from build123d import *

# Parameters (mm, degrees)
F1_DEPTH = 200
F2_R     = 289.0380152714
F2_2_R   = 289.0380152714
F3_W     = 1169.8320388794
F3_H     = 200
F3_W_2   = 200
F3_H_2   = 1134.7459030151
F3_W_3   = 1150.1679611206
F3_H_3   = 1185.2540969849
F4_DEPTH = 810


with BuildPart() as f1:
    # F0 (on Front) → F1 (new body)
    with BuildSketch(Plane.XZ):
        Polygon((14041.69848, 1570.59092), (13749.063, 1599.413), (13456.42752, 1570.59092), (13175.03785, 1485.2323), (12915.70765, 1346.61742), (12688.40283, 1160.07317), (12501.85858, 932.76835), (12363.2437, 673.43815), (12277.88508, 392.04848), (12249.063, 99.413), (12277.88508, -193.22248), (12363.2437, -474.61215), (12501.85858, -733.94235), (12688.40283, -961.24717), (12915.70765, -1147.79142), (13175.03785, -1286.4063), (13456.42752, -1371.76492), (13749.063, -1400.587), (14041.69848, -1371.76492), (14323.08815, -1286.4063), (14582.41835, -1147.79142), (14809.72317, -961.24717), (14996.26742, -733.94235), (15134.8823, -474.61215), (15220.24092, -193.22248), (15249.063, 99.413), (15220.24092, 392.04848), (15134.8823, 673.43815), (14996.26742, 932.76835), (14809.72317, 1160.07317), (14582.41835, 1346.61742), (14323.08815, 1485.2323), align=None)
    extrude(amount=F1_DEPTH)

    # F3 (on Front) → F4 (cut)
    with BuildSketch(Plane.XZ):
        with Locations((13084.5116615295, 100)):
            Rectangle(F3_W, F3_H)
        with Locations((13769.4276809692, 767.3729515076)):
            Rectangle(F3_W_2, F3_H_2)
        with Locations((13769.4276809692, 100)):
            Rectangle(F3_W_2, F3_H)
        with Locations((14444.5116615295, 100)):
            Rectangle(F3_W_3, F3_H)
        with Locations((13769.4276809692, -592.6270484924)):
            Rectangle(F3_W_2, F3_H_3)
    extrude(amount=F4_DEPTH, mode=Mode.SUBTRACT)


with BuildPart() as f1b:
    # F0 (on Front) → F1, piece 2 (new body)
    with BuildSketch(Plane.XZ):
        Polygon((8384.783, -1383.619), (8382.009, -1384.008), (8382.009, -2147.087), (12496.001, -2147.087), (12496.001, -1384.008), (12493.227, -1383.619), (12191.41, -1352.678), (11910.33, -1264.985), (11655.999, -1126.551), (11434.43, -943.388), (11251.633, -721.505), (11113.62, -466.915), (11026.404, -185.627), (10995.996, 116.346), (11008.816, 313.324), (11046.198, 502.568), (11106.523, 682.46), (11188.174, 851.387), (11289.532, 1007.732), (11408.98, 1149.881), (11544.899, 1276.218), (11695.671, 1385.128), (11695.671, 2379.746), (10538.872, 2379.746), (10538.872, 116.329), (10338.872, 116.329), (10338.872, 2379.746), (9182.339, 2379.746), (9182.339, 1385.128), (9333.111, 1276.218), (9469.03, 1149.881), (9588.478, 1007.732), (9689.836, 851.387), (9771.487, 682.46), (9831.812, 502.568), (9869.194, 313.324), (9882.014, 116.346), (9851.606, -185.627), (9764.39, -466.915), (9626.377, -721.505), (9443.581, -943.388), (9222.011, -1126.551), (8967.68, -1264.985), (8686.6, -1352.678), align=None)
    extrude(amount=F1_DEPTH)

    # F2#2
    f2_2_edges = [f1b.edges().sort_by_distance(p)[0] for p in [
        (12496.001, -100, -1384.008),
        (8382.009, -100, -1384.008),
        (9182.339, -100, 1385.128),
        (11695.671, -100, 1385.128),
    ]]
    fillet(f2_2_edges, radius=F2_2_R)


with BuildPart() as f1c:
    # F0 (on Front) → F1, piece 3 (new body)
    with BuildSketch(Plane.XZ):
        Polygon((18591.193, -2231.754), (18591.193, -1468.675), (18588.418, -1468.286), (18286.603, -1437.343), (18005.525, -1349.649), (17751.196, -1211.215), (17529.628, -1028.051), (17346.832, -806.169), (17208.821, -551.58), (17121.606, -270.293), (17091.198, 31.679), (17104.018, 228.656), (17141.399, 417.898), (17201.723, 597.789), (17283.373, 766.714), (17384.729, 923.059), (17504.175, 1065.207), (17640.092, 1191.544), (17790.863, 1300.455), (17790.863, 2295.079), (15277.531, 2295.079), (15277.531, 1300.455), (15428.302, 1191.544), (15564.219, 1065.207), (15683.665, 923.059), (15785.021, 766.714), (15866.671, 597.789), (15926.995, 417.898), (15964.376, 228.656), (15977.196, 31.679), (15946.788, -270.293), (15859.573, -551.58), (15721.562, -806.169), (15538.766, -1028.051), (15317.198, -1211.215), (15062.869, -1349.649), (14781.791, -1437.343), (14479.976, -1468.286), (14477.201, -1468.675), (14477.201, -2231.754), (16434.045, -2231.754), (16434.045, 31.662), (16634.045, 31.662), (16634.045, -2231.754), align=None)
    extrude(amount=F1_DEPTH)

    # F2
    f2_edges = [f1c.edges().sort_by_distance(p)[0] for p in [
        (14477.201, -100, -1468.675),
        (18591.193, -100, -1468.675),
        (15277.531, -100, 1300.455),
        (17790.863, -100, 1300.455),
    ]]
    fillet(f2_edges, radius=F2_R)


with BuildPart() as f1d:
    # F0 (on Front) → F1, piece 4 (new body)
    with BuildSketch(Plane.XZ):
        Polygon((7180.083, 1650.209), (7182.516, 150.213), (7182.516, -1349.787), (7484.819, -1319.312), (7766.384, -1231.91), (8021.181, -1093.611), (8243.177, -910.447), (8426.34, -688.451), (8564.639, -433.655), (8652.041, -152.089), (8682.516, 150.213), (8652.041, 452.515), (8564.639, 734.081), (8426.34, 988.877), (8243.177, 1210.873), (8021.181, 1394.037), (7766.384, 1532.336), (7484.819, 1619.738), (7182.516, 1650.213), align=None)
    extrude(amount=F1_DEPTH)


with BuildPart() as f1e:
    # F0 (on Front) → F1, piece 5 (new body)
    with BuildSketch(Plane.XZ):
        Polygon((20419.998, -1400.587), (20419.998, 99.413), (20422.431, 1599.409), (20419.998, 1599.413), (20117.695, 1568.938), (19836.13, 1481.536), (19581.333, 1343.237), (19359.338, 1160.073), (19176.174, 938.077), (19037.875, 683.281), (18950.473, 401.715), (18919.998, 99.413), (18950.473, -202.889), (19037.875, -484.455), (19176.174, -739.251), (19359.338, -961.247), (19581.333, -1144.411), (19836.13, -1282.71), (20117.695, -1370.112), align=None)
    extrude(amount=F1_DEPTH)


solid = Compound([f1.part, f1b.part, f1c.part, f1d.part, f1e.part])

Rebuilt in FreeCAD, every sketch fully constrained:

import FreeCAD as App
import Part
import Sketcher
from FreeCAD import Vector


def edges_at(feature, points):
    """Names of the edges that pass closest to the given points."""
    edges = feature.Shape.Edges
    near = lambda p: min(range(len(edges)), key=lambda i: edges[i].distToShape(Part.Vertex(*p))[0])
    return sorted({f"Edge{near(p) + 1}" for p in points})


def add_polygon(sketch, points):
    """Adds a closed chain of lines whose ends are joined by coincident constraints."""
    first, n = sketch.GeometryCount, len(points)
    for a, b in zip(points, points[1:] + points[:1]):
        sketch.addGeometry(Part.LineSegment(App.Vector(*a, 0), App.Vector(*b, 0)), False)
    for i in range(n):
        sketch.addConstraint(Sketcher.Constraint("Coincident", first + i, 2, first + (i + 1) % n, 1))

doc = App.newDocument("Part")
body = doc.addObject("PartDesign::Body", "Body")

sketch1 = body.newObject("Sketcher::SketchObject", "Sketch")
sketch1.AttachmentSupport = (doc.getObject("XZ_Plane"), [""])
sketch1.MapMode = "FlatFace"
add_polygon(sketch1, [(14041.69848, 1570.59092), (13749.063, 1599.413), (13456.42752, 1570.59092), (13175.03785, 1485.2323), (12915.70765, 1346.61742), (12688.40283, 1160.07317), (12501.85858, 932.76835), (12363.2437, 673.43815), (12277.88508, 392.04848), (12249.063, 99.413), (12277.88508, -193.22248), (12363.2437, -474.61215), (12501.85858, -733.94235), (12688.40283, -961.24717), (12915.70765, -1147.79142), (13175.03785, -1286.4063), (13456.42752, -1371.76492), (13749.063, -1400.587), (14041.69848, -1371.76492), (14323.08815, -1286.4063), (14582.41835, -1147.79142), (14809.72317, -961.24717), (14996.26742, -733.94235), (15134.8823, -474.61215), (15220.24092, -193.22248), (15249.063, 99.413), (15220.24092, 392.04848), (15134.8823, 673.43815), (14996.26742, 932.76835), (14809.72317, 1160.07317), (14582.41835, 1346.61742), (14323.08815, 1485.2323)])
sketch1.addConstraint([
    Sketcher.Constraint("Perpendicular", 0, 8),
    Sketcher.Constraint("Perpendicular", 1, 9),
    Sketcher.Constraint("Perpendicular", 2, 10),
    Sketcher.Constraint("Perpendicular", 3, 11),
    Sketcher.Constraint("Perpendicular", 4, 12),
    Sketcher.Constraint("Perpendicular", 5, 13),
    Sketcher.Constraint("Perpendicular", 6, 14),
    Sketcher.Constraint("Perpendicular", 7, 15),
    Sketcher.Constraint("Perpendicular", 8, 16),
    Sketcher.Constraint("Perpendicular", 9, 17),
    Sketcher.Constraint("Perpendicular", 10, 18),
    Sketcher.Constraint("Perpendicular", 11, 19),
    Sketcher.Constraint("Perpendicular", 12, 20),
    Sketcher.Constraint("Perpendicular", 13, 21),
    Sketcher.Constraint("Perpendicular", 14, 22),
    Sketcher.Constraint("Perpendicular", 15, 23),
    Sketcher.Constraint("Perpendicular", 16, 24),
    Sketcher.Constraint("Perpendicular", 17, 25),
    Sketcher.Constraint("Perpendicular", 18, 26),
    Sketcher.Constraint("Perpendicular", 19, 27),
    Sketcher.Constraint("Perpendicular", 20, 28),
    Sketcher.Constraint("Perpendicular", 21, 29),
    Sketcher.Constraint("Perpendicular", 22, 30),
    Sketcher.Constraint("Perpendicular", 23, 31),
    Sketcher.Constraint("Horizontal", 15, 2, 17, 2),
    Sketcher.Constraint("Horizontal", 14, 2, 18, 2),
    Sketcher.Constraint("Horizontal", 13, 2, 19, 2),
    Sketcher.Constraint("Horizontal", 12, 2, 20, 2),
    Sketcher.Constraint("Horizontal", 11, 2, 21, 2),
    Sketcher.Constraint("Horizontal", 10, 2, 22, 2),
    Sketcher.Constraint("Horizontal", 9, 2, 23, 2),
    Sketcher.Constraint("Horizontal", 8, 2, 24, 2),
    Sketcher.Constraint("Horizontal", 7, 2, 25, 2),
    Sketcher.Constraint("Horizontal", 6, 2, 26, 2),
    Sketcher.Constraint("Horizontal", 5, 2, 27, 2),
    Sketcher.Constraint("Horizontal", 4, 2, 28, 2),
    Sketcher.Constraint("Horizontal", 3, 2, 29, 2),
    Sketcher.Constraint("Horizontal", 2, 2, 30, 2),
    Sketcher.Constraint("Horizontal", 1, 2, 31, 2),
    Sketcher.Constraint("Vertical", 7, 2, 9, 2),
    Sketcher.Constraint("Vertical", 6, 2, 10, 2),
    Sketcher.Constraint("Vertical", 5, 2, 11, 2),
    Sketcher.Constraint("Vertical", 4, 2, 12, 2),
    Sketcher.Constraint("Vertical", 3, 2, 13, 2),
    Sketcher.Constraint("Vertical", 2, 2, 14, 2),
    Sketcher.Constraint("Vertical", 1, 2, 15, 2),
    Sketcher.Constraint("Vertical", 0, 2, 16, 2),
    Sketcher.Constraint("Vertical", 23, 2, 25, 2),
    Sketcher.Constraint("Vertical", 22, 2, 26, 2),
    Sketcher.Constraint("Vertical", 21, 2, 27, 2),
    Sketcher.Constraint("Equal", 1, 3),
    Sketcher.Constraint("Equal", 3, 4),
    Sketcher.Constraint("Equal", 4, 5),
    Sketcher.Constraint("Equal", 5, 6),
    Sketcher.Constraint("Equal", 2, 7),
    Sketcher.Constraint("Equal", 6, 8),
    Sketcher.Constraint("DistanceX", -1, 1, 0, 2, 13749.063),
    Sketcher.Constraint("DistanceY", -1, 1, 0, 2, 1599.413),
    Sketcher.Constraint("DistanceX", -1, 1, 8, 2, 12249.063),
    Sketcher.Constraint("DistanceY", -1, 1, 2, 2, 1485.2323),
    Sketcher.Constraint("DistanceX", 3, 2, 2, 2, 259.3302),
    Sketcher.Constraint("DistanceY", 3, 2, 1, 2, 223.9735),
    Sketcher.Constraint("DistanceY", 10, 2, 6, 2, 1148.0503),
    Sketcher.Constraint("Distance", 0, 294.051418),
])
pad1 = body.newObject("PartDesign::Pad", "Pad")
pad1.Profile = sketch1
pad1.Length = 200

sketch2 = body.newObject("Sketcher::SketchObject", "Sketch001")
sketch2.AttachmentSupport = (doc.getObject("XZ_Plane"), [""])
sketch2.MapMode = "FlatFace"
add_polygon(sketch2, [(12500, 200), (12500, 0), (13669, 0), (13669, -1185), (13869, -1185), (13869, 0), (15020, 0), (15020, 200), (13869, 200), (13869, 1335), (13669, 1335), (13669, 200)])
sketch2.addConstraint([
    Sketcher.Constraint("Vertical", 0),
    Sketcher.Constraint("Horizontal", 1),
    Sketcher.Constraint("Vertical", 2),
    Sketcher.Constraint("Horizontal", 3),
    Sketcher.Constraint("Vertical", 4),
    Sketcher.Constraint("Horizontal", 5),
    Sketcher.Constraint("Vertical", 6),
    Sketcher.Constraint("Horizontal", 7),
    Sketcher.Constraint("Vertical", 8),
    Sketcher.Constraint("Horizontal", 9),
    Sketcher.Constraint("Vertical", 10),
    Sketcher.Constraint("Horizontal", 11),
    Sketcher.Constraint("PointOnObject", 0, 2, -1),
    Sketcher.Constraint("PointOnObject", 4, 2, -1),
    Sketcher.Constraint("Horizontal", 7, 2, 10, 2),
    Sketcher.Constraint("Vertical", 4, 2, 7, 2),
    Sketcher.Constraint("Vertical", 2, 2, 9, 2),
    Sketcher.Constraint("Equal", 9, 0),
    Sketcher.Constraint("DistanceX", 3, 1, 3, 2, 200.0),
    Sketcher.Constraint("DistanceX", 0, 2, 5, 2, 2520.0),
    Sketcher.Constraint("DistanceX", 1, 1, 1, 2, 1169.832039),
    Sketcher.Constraint("DistanceY", 2, 2, 2, 1, 1185.254097),
    Sketcher.Constraint("DistanceY", 8, 1, 8, 2, 1134.745903),
    Sketcher.Constraint("DistanceX", -1, 1, 1, 2, 13669.427681),
])
pocket1 = body.newObject("PartDesign::Pocket", "Pocket")
pocket1.Profile = sketch2
pocket1.Length = 810
pocket1.Reversed = True
body2 = doc.addObject("PartDesign::Body", "Body001")

sketch3 = body2.newObject("Sketcher::SketchObject", "Sketch002")
sketch3.AttachmentSupport = (doc.getObject("XZ_Plane001"), [""])
sketch3.MapMode = "FlatFace"
add_polygon(sketch3, [(8384.8, -1383.6), (8382, -1384), (8382, -2147.1), (12496, -2147.1), (12496, -1384), (12493.2, -1383.6), (12191.4, -1352.7), (11910.3, -1265), (11656, -1126.6), (11434.4, -943.4), (11251.6, -721.5), (11113.6, -466.9), (11026.4, -185.6), (10996, 116.3), (11008.8, 313.3), (11046.2, 502.6), (11106.5, 682.5), (11188.2, 851.4), (11289.5, 1007.7), (11409, 1149.9), (11544.9, 1276.2), (11695.7, 1385.1), (11695.7, 2379.7), (10538.9, 2379.7), (10538.9, 116.3), (10338.9, 116.3), (10338.9, 2379.7), (9182.3, 2379.7), (9182.3, 1385.1), (9333.1, 1276.2), (9469, 1149.9), (9588.5, 1007.7), (9689.8, 851.4), (9771.5, 682.5), (9831.8, 502.6), (9869.2, 313.3), (9882, 116.3), (9851.6, -185.6), (9764.4, -466.9), (9626.4, -721.5), (9443.6, -943.4), (9222, -1126.6), (8967.7, -1265), (8686.6, -1352.7)])
sketch3.addConstraint([
    Sketcher.Constraint("Vertical", 1),
    Sketcher.Constraint("Horizontal", 2),
    Sketcher.Constraint("Vertical", 3),
    Sketcher.Constraint("Vertical", 21),
    Sketcher.Constraint("Horizontal", 22),
    Sketcher.Constraint("Vertical", 23),
    Sketcher.Constraint("Horizontal", 24),
    Sketcher.Constraint("Vertical", 25),
    Sketcher.Constraint("Horizontal", 26),
    Sketcher.Constraint("Vertical", 27),
    Sketcher.Constraint("Horizontal", 0, 2, 3, 2),
    Sketcher.Constraint("Horizontal", 22, 2, 25, 2),
    Sketcher.Constraint("Horizontal", 20, 2, 27, 2),
    Sketcher.Constraint("Horizontal", 19, 2, 28, 2),
    Sketcher.Constraint("Horizontal", 18, 2, 29, 2),
    Sketcher.Constraint("Horizontal", 17, 2, 30, 2),
    Sketcher.Constraint("Horizontal", 16, 2, 31, 2),
    Sketcher.Constraint("Horizontal", 15, 2, 32, 2),
    Sketcher.Constraint("Horizontal", 14, 2, 33, 2),
    Sketcher.Constraint("Horizontal", 13, 2, 34, 2),
    Sketcher.Constraint("Horizontal", 12, 2, 35, 2),
    Sketcher.Constraint("Horizontal", 11, 2, 36, 2),
    Sketcher.Constraint("Horizontal", 10, 2, 37, 2),
    Sketcher.Constraint("Horizontal", 9, 2, 38, 2),
    Sketcher.Constraint("Horizontal", 8, 2, 39, 2),
    Sketcher.Constraint("Horizontal", 7, 2, 40, 2),
    Sketcher.Constraint("Horizontal", 6, 2, 41, 2),
    Sketcher.Constraint("Horizontal", 5, 2, 42, 2),
    Sketcher.Constraint("Horizontal", 4, 2, 43, 2),
    Sketcher.Constraint("Equal", 0, 4),
    Sketcher.Constraint("Equal", 20, 28),
    Sketcher.Constraint("Equal", 19, 29),
    Sketcher.Constraint("Equal", 18, 30),
    Sketcher.Constraint("Equal", 17, 31),
    Sketcher.Constraint("Equal", 16, 32),
    Sketcher.Constraint("Equal", 15, 33),
    Sketcher.Constraint("Equal", 14, 34),
    Sketcher.Constraint("Equal", 13, 35),
    Sketcher.Constraint("Equal", 12, 36),
    Sketcher.Constraint("Equal", 11, 37),
    Sketcher.Constraint("Equal", 10, 38),
    Sketcher.Constraint("Equal", 7, 41),
    Sketcher.Constraint("Equal", 6, 42),
    Sketcher.Constraint("Equal", 5, 43),
    Sketcher.Constraint("DistanceX", 24, 2, 24, 1, 200.0),
    Sketcher.Constraint("DistanceX", -1, 1, 42, 2, 8686.6),
    Sketcher.Constraint("DistanceX", 8, 2, 6, 2, 475.9),
    Sketcher.Constraint("DistanceX", 2, 1, 2, 2, 4113.992),
    Sketcher.Constraint("DistanceX", 22, 2, 22, 1, 1156.799),
    Sketcher.Constraint("DistanceX", 26, 2, 26, 1, 1156.533),
    Sketcher.Constraint("DistanceY", 1, 2, 1, 1, 763.079),
    Sketcher.Constraint("DistanceY", 21, 1, 21, 2, 994.618),
    Sketcher.Constraint("DistanceY", 23, 2, 23, 1, 2263.417),
    Sketcher.Constraint("DistanceX", -1, 1, 5, 2, 12191.41),
    Sketcher.Constraint("DistanceX", -1, 1, 6, 2, 11910.33),
    Sketcher.Constraint("DistanceX", -1, 1, 10, 2, 11113.62),
    Sketcher.Constraint("DistanceY", -1, 1, 15, 2, 682.46),
    Sketcher.Constraint("DistanceX", -1, 1, 18, 2, 11408.98),
    Sketcher.Constraint("DistanceX", -1, 1, 29, 2, 9469.03),
    Sketcher.Constraint("DistanceY", 3, 2, 5, 2, 31.33),
    Sketcher.Constraint("DistanceY", 5, 2, 8, 2, 409.29),
    Sketcher.Constraint("DistanceY", 6, 2, 9, 2, 543.48),
    Sketcher.Constraint("DistanceY", 9, 2, 10, 2, 254.59),
    Sketcher.Constraint("DistanceX", 12, 2, 13, 2, 12.82),
    Sketcher.Constraint("DistanceX", 11, 2, 16, 2, 161.77),
    Sketcher.Constraint("DistanceY", 14, 2, 19, 2, 773.65),
    Sketcher.Constraint("DistanceY", 19, 2, 20, 2, 108.91),
    Sketcher.Constraint("DistanceX", 22, 2, 17, 2, 750.66),
    Sketcher.Constraint("DistanceX", 33, 2, 24, 2, 507.06),
    Sketcher.Constraint("DistanceX", 40, 2, 39, 2, 221.57),
    Sketcher.Constraint("DistanceY", 0, 2, -1, 1, 1384.008),
    Sketcher.Constraint("DistanceX", -1, 1, 4, 2, 12493.227),
    Sketcher.Constraint("DistanceY", 4, 2, -1, 1, 1383.619),
    Sketcher.Constraint("DistanceY", 6, 2, -1, 1, 1264.985),
    Sketcher.Constraint("DistanceX", -1, 1, 7, 2, 11655.999),
    Sketcher.Constraint("DistanceY", 7, 2, -1, 1, 1126.551),
    Sketcher.Constraint("DistanceX", -1, 1, 9, 2, 11251.633),
    Sketcher.Constraint("DistanceX", -1, 1, 11, 2, 11026.404),
    Sketcher.Constraint("DistanceY", 11, 2, -1, 1, 185.627),
    Sketcher.Constraint("DistanceX", -1, 1, 12, 2, 10995.996),
    Sketcher.Constraint("DistanceY", -1, 1, 12, 2, 116.346),
    Sketcher.Constraint("DistanceY", -1, 1, 13, 2, 313.324),
    Sketcher.Constraint("DistanceY", -1, 1, 14, 2, 502.568),
    Sketcher.Constraint("DistanceX", -1, 1, 15, 2, 11106.523),
    Sketcher.Constraint("DistanceY", -1, 1, 16, 2, 851.387),
    Sketcher.Constraint("DistanceY", -1, 1, 17, 2, 1007.732),
    Sketcher.Constraint("DistanceY", -1, 1, 18, 2, 1149.881),
    Sketcher.Constraint("DistanceX", -1, 1, 19, 2, 11544.899),
])
pad2 = body2.newObject("PartDesign::Pad", "Pad001")
pad2.Profile = sketch3
pad2.Length = 200
doc.recompute()

fillet = body2.newObject("PartDesign::Fillet", "Fillet")
fillet.Base = (pad2, edges_at(pad2, [
    (12496.001, -100, -1384.008),
    (8382.009, -100, -1384.008),
    (9182.339, -100, 1385.128),
    (11695.671, -100, 1385.128),
]))
fillet.Radius = 289.038015
body3 = doc.addObject("PartDesign::Body", "Body002")

sketch4 = body3.newObject("Sketcher::SketchObject", "Sketch003")
sketch4.AttachmentSupport = (doc.getObject("XZ_Plane002"), [""])
sketch4.MapMode = "FlatFace"
add_polygon(sketch4, [(18591.2, -2231.8), (18591.2, -1468.7), (18588.4, -1468.3), (18286.6, -1437.3), (18005.5, -1349.6), (17751.2, -1211.2), (17529.6, -1028.1), (17346.8, -806.2), (17208.8, -551.6), (17121.6, -270.3), (17091.2, 31.7), (17104, 228.7), (17141.4, 417.9), (17201.7, 597.8), (17283.4, 766.7), (17384.7, 923.1), (17504.2, 1065.2), (17640.1, 1191.5), (17790.9, 1300.5), (17790.9, 2295.1), (15277.5, 2295.1), (15277.5, 1300.5), (15428.3, 1191.5), (15564.2, 1065.2), (15683.7, 923.1), (15785, 766.7), (15866.7, 597.8), (15927, 417.9), (15964.4, 228.7), (15977.2, 31.7), (15946.8, -270.3), (15859.6, -551.6), (15721.6, -806.2), (15538.8, -1028.1), (15317.2, -1211.2), (15062.9, -1349.6), (14781.8, -1437.3), (14480, -1468.3), (14477.2, -1468.7), (14477.2, -2231.8), (16434, -2231.8), (16434, 31.7), (16634, 31.7), (16634, -2231.8)])
sketch4.addConstraint([
    Sketcher.Constraint("Vertical", 0),
    Sketcher.Constraint("Vertical", 18),
    Sketcher.Constraint("Horizontal", 19),
    Sketcher.Constraint("Vertical", 20),
    Sketcher.Constraint("Vertical", 38),
    Sketcher.Constraint("Horizontal", 39),
    Sketcher.Constraint("Vertical", 40),
    Sketcher.Constraint("Horizontal", 41),
    Sketcher.Constraint("Vertical", 42),
    Sketcher.Constraint("Horizontal", 43),
    Sketcher.Constraint("Horizontal", 17, 2, 20, 2),
    Sketcher.Constraint("Horizontal", 16, 2, 21, 2),
    Sketcher.Constraint("Horizontal", 15, 2, 22, 2),
    Sketcher.Constraint("Horizontal", 14, 2, 23, 2),
    Sketcher.Constraint("Horizontal", 13, 2, 24, 2),
    Sketcher.Constraint("Horizontal", 12, 2, 25, 2),
    Sketcher.Constraint("Horizontal", 11, 2, 26, 2),
    Sketcher.Constraint("Horizontal", 10, 2, 27, 2),
    Sketcher.Constraint("Horizontal", 9, 2, 28, 2),
    Sketcher.Constraint("Horizontal", 8, 2, 29, 2),
    Sketcher.Constraint("Horizontal", 7, 2, 30, 2),
    Sketcher.Constraint("Horizontal", 6, 2, 31, 2),
    Sketcher.Constraint("Horizontal", 5, 2, 32, 2),
    Sketcher.Constraint("Horizontal", 4, 2, 33, 2),
    Sketcher.Constraint("Horizontal", 3, 2, 34, 2),
    Sketcher.Constraint("Horizontal", 2, 2, 35, 2),
    Sketcher.Constraint("Horizontal", 1, 2, 36, 2),
    Sketcher.Constraint("Horizontal", 0, 2, 37, 2),
    Sketcher.Constraint("Horizontal", 39, 2, 42, 2),
    Sketcher.Constraint("Equal", 17, 21),
    Sketcher.Constraint("Equal", 16, 22),
    Sketcher.Constraint("Equal", 15, 23),
    Sketcher.Constraint("Equal", 14, 24),
    Sketcher.Constraint("Equal", 13, 25),
    Sketcher.Constraint("Equal", 12, 26),
    Sketcher.Constraint("Equal", 11, 27),
    Sketcher.Constraint("Equal", 10, 28),
    Sketcher.Constraint("Equal", 9, 29),
    Sketcher.Constraint("Equal", 8, 30),
    Sketcher.Constraint("Equal", 7, 31),
    Sketcher.Constraint("Equal", 6, 32),
    Sketcher.Constraint("Equal", 5, 33),
    Sketcher.Constraint("Equal", 4, 34),
    Sketcher.Constraint("Equal", 3, 35),
    Sketcher.Constraint("Equal", 2, 36),
    Sketcher.Constraint("Equal", 1, 37),
    Sketcher.Constraint("DistanceX", 41, 1, 41, 2, 200.0),
    Sketcher.Constraint("DistanceX", 19, 2, 19, 1, 2513.332),
    Sketcher.Constraint("DistanceX", 39, 1, 39, 2, 1956.844),
    Sketcher.Constraint("DistanceX", 43, 1, 43, 2, 1957.148),
    Sketcher.Constraint("DistanceY", 0, 1, 0, 2, 763.079),
    Sketcher.Constraint("DistanceY", 18, 1, 18, 2, 994.624),
    Sketcher.Constraint("DistanceY", 40, 1, 40, 2, 2263.416),
    Sketcher.Constraint("DistanceY", 7, 2, -1, 1, 551.58),
    Sketcher.Constraint("DistanceX", 2, 2, 0, 2, 304.59),
    Sketcher.Constraint("DistanceY", 0, 2, 4, 2, 257.46),
    Sketcher.Constraint("DistanceX", 5, 2, 1, 2, 1058.79),
    Sketcher.Constraint("DistanceY", 3, 2, 6, 2, 543.48),
    Sketcher.Constraint("DistanceX", 8, 2, 4, 2, 629.59),
    Sketcher.Constraint("DistanceX", 9, 2, 5, 2, 438.43),
    Sketcher.Constraint("DistanceY", 5, 2, 9, 2, 1059.73),
    Sketcher.Constraint("DistanceX", 9, 2, 10, 2, 12.82),
    Sketcher.Constraint("DistanceY", 9, 2, 12, 2, 566.11),
    Sketcher.Constraint("DistanceX", 12, 2, 13, 2, 81.65),
    Sketcher.Constraint("DistanceY", 12, 2, 14, 2, 325.27),
    Sketcher.Constraint("DistanceX", 11, 2, 14, 2, 243.33),
    Sketcher.Constraint("DistanceY", 13, 2, 16, 2, 424.83),
    Sketcher.Constraint("DistanceX", 13, 2, 17, 2, 507.49),
    Sketcher.Constraint("DistanceY", 14, 2, 18, 2, 1372.02),
    Sketcher.Constraint("DistanceX", 22, 2, 11, 2, 1577.18),
    Sketcher.Constraint("DistanceX", 26, 2, 40, 2, 507.05),
    Sketcher.Constraint("DistanceX", -1, 1, 0, 2, 18591.193),
    Sketcher.Constraint("DistanceY", 0, 2, -1, 1, 1468.675),
    Sketcher.Constraint("DistanceX", -1, 1, 1, 2, 18588.418),
    Sketcher.Constraint("DistanceY", 1, 2, -1, 1, 1468.286),
    Sketcher.Constraint("DistanceY", 2, 2, -1, 1, 1437.343),
    Sketcher.Constraint("DistanceX", -1, 1, 3, 2, 18005.525),
    Sketcher.Constraint("DistanceY", 3, 2, -1, 1, 1349.649),
    Sketcher.Constraint("DistanceX", -1, 1, 4, 2, 17751.196),
    Sketcher.Constraint("DistanceY", 5, 2, -1, 1, 1028.051),
    Sketcher.Constraint("DistanceX", -1, 1, 6, 2, 17346.832),
    Sketcher.Constraint("DistanceX", -1, 1, 7, 2, 17208.821),
    Sketcher.Constraint("DistanceY", 8, 2, -1, 1, 270.293),
    Sketcher.Constraint("DistanceY", -1, 1, 10, 2, 228.656),
    Sketcher.Constraint("DistanceY", -1, 1, 11, 2, 417.898),
    Sketcher.Constraint("DistanceY", -1, 1, 13, 2, 766.714),
    Sketcher.Constraint("DistanceY", -1, 1, 15, 2, 1065.207),
    Sketcher.Constraint("DistanceX", -1, 1, 16, 2, 17640.092),
])
pad3 = body3.newObject("PartDesign::Pad", "Pad002")
pad3.Profile = sketch4
pad3.Length = 200
doc.recompute()

fillet2 = body3.newObject("PartDesign::Fillet", "Fillet001")
fillet2.Base = (pad3, edges_at(pad3, [
    (14477.201, -100, -1468.675),
    (18591.193, -100, -1468.675),
    (15277.531, -100, 1300.455),
    (17790.863, -100, 1300.455),
]))
fillet2.Radius = 289.038015
body4 = doc.addObject("PartDesign::Body", "Body003")

sketch5 = body4.newObject("Sketcher::SketchObject", "Sketch004")
sketch5.AttachmentSupport = (doc.getObject("XZ_Plane003"), [""])
sketch5.MapMode = "FlatFace"
add_polygon(sketch5, [(7180.083, 1650.209), (7182.516, 150.213), (7182.516, -1349.787), (7484.819, -1319.312), (7766.384, -1231.91), (8021.181, -1093.611), (8243.177, -910.447), (8426.34, -688.451), (8564.639, -433.655), (8652.041, -152.089), (8682.516, 150.213), (8652.041, 452.515), (8564.639, 734.081), (8426.34, 988.877), (8243.177, 1210.873), (8021.181, 1394.037), (7766.384, 1532.336), (7484.819, 1619.738), (7182.516, 1650.213)])
sketch5.addConstraint([
    Sketcher.Constraint("Vertical", 1),
    Sketcher.Constraint("DistanceY", 1, 2, 1, 1, 1500.0),
    Sketcher.Constraint("DistanceY", 3, 2, -1, 1, 1231.91),
    Sketcher.Constraint("DistanceX", -1, 1, 6, 2, 8426.34),
    Sketcher.Constraint("DistanceX", -1, 1, 12, 2, 8426.34),
    Sketcher.Constraint("DistanceY", 1, 2, 5, 2, 439.34),
    Sketcher.Constraint("DistanceY", 4, 2, 6, 2, 405.16),
    Sketcher.Constraint("DistanceX", 2, 2, 7, 2, 1079.82),
    Sketcher.Constraint("DistanceX", 4, 2, 8, 2, 630.86),
    Sketcher.Constraint("DistanceY", 5, 2, 9, 2, 1060.66),
    Sketcher.Constraint("DistanceY", 7, 2, 10, 2, 886.17),
    Sketcher.Constraint("DistanceY", 8, 2, 11, 2, 886.17),
    Sketcher.Constraint("DistanceY", 9, 2, 13, 2, 1060.66),
    Sketcher.Constraint("DistanceY", 12, 2, 14, 2, 405.16),
    Sketcher.Constraint("DistanceX", 14, 2, 10, 2, 630.86),
    Sketcher.Constraint("DistanceX", 16, 2, 11, 2, 1079.82),
    Sketcher.Constraint("DistanceY", 13, 2, 17, 2, 439.34),
    Sketcher.Constraint("DistanceX", -1, 1, 0, 2, 7182.516),
    Sketcher.Constraint("DistanceY", -1, 1, 0, 2, 150.213),
    Sketcher.Constraint("DistanceX", -1, 1, 2, 2, 7484.819),
    Sketcher.Constraint("DistanceY", 2, 2, -1, 1, 1319.312),
    Sketcher.Constraint("DistanceX", -1, 1, 3, 2, 7766.384),
    Sketcher.Constraint("DistanceX", -1, 1, 4, 2, 8021.181),
    Sketcher.Constraint("DistanceY", 4, 2, -1, 1, 1093.611),
    Sketcher.Constraint("DistanceX", -1, 1, 5, 2, 8243.177),
    Sketcher.Constraint("DistanceY", 7, 2, -1, 1, 433.655),
    Sketcher.Constraint("DistanceY", 8, 2, -1, 1, 152.089),
    Sketcher.Constraint("DistanceX", -1, 1, 9, 2, 8682.516),
    Sketcher.Constraint("DistanceX", -1, 1, 10, 2, 8652.041),
    Sketcher.Constraint("DistanceX", -1, 1, 11, 2, 8564.639),
    Sketcher.Constraint("DistanceY", -1, 1, 12, 2, 988.877),
    Sketcher.Constraint("DistanceX", -1, 1, 13, 2, 8243.177),
    Sketcher.Constraint("DistanceX", -1, 1, 15, 2, 7766.384),
    Sketcher.Constraint("DistanceY", -1, 1, 15, 2, 1532.336),
    Sketcher.Constraint("DistanceY", -1, 1, 16, 2, 1619.738),
    Sketcher.Constraint("DistanceX", -1, 1, 17, 2, 7182.516),
    Sketcher.Constraint("DistanceX", -1, 1, 18, 2, 7180.083),
    Sketcher.Constraint("DistanceY", -1, 1, 18, 2, 1650.209),
])
pad4 = body4.newObject("PartDesign::Pad", "Pad003")
pad4.Profile = sketch5
pad4.Length = 200
body5 = doc.addObject("PartDesign::Body", "Body004")

sketch6 = body5.newObject("Sketcher::SketchObject", "Sketch005")
sketch6.AttachmentSupport = (doc.getObject("XZ_Plane004"), [""])
sketch6.MapMode = "FlatFace"
add_polygon(sketch6, [(20419.998, -1400.587), (20419.998, 99.413), (20422.431, 1599.409), (20419.998, 1599.413), (20117.695, 1568.938), (19836.13, 1481.536), (19581.333, 1343.237), (19359.338, 1160.073), (19176.174, 938.077), (19037.875, 683.281), (18950.473, 401.715), (18919.998, 99.413), (18950.473, -202.889), (19037.875, -484.455), (19176.174, -739.251), (19359.338, -961.247), (19581.333, -1144.411), (19836.13, -1282.71), (20117.695, -1370.112)])
sketch6.addConstraint([
    Sketcher.Constraint("Vertical", 0),
    Sketcher.Constraint("Perpendicular", 3, 11),
    Sketcher.Constraint("Perpendicular", 4, 12),
    Sketcher.Constraint("Perpendicular", 5, 13),
    Sketcher.Constraint("Perpendicular", 8, 16),
    Sketcher.Constraint("Perpendicular", 9, 17),
    Sketcher.Constraint("Perpendicular", 10, 18),
    Sketcher.Constraint("Horizontal", 0, 2, 10, 2),
    Sketcher.Constraint("Vertical", 0, 2, 2, 2),
    Sketcher.Constraint("Vertical", 9, 2, 11, 2),
    Sketcher.Constraint("Vertical", 8, 2, 12, 2),
    Sketcher.Constraint("Vertical", 7, 2, 13, 2),
    Sketcher.Constraint("Vertical", 6, 2, 14, 2),
    Sketcher.Constraint("Vertical", 5, 2, 15, 2),
    Sketcher.Constraint("Vertical", 4, 2, 16, 2),
    Sketcher.Constraint("Vertical", 3, 2, 17, 2),
    Sketcher.Constraint("Equal", 10, 11),
    Sketcher.Constraint("Equal", 9, 12),
    Sketcher.Constraint("Equal", 8, 13),
    Sketcher.Constraint("Equal", 7, 14),
    Sketcher.Constraint("Equal", 6, 15),
    Sketcher.Constraint("DistanceY", 0, 1, 0, 2, 1500.0),
    Sketcher.Constraint("DistanceX", -1, 1, 4, 2, 19836.13),
    Sketcher.Constraint("DistanceY", 16, 2, -1, 1, 1282.71),
    Sketcher.Constraint("DistanceX", 6, 2, 2, 2, 1060.66),
    Sketcher.Constraint("DistanceY", 6, 2, 2, 2, 439.34),
    Sketcher.Constraint("DistanceY", 7, 2, 5, 2, 405.16),
    Sketcher.Constraint("DistanceX", 8, 2, 3, 2, 1079.82),
    Sketcher.Constraint("DistanceX", 9, 2, 5, 2, 630.86),
    Sketcher.Constraint("DistanceX", 10, 2, 6, 2, 439.34),
    Sketcher.Constraint("DistanceY", 11, 2, 8, 2, 886.17),
    Sketcher.Constraint("DistanceX", -1, 1, 0, 2, 20419.998),
    Sketcher.Constraint("DistanceY", -1, 1, 0, 2, 99.413),
    Sketcher.Constraint("DistanceX", -1, 1, 1, 2, 20422.431),
    Sketcher.Constraint("DistanceY", -1, 1, 1, 2, 1599.409),
    Sketcher.Constraint("DistanceX", -1, 1, 3, 2, 20117.695),
    Sketcher.Constraint("DistanceY", -1, 1, 3, 2, 1568.938),
    Sketcher.Constraint("DistanceY", -1, 1, 5, 2, 1343.237),
])
pad5 = body5.newObject("PartDesign::Pad", "Pad004")
pad5.Profile = sketch6
pad5.Length = 200

doc.recompute()
